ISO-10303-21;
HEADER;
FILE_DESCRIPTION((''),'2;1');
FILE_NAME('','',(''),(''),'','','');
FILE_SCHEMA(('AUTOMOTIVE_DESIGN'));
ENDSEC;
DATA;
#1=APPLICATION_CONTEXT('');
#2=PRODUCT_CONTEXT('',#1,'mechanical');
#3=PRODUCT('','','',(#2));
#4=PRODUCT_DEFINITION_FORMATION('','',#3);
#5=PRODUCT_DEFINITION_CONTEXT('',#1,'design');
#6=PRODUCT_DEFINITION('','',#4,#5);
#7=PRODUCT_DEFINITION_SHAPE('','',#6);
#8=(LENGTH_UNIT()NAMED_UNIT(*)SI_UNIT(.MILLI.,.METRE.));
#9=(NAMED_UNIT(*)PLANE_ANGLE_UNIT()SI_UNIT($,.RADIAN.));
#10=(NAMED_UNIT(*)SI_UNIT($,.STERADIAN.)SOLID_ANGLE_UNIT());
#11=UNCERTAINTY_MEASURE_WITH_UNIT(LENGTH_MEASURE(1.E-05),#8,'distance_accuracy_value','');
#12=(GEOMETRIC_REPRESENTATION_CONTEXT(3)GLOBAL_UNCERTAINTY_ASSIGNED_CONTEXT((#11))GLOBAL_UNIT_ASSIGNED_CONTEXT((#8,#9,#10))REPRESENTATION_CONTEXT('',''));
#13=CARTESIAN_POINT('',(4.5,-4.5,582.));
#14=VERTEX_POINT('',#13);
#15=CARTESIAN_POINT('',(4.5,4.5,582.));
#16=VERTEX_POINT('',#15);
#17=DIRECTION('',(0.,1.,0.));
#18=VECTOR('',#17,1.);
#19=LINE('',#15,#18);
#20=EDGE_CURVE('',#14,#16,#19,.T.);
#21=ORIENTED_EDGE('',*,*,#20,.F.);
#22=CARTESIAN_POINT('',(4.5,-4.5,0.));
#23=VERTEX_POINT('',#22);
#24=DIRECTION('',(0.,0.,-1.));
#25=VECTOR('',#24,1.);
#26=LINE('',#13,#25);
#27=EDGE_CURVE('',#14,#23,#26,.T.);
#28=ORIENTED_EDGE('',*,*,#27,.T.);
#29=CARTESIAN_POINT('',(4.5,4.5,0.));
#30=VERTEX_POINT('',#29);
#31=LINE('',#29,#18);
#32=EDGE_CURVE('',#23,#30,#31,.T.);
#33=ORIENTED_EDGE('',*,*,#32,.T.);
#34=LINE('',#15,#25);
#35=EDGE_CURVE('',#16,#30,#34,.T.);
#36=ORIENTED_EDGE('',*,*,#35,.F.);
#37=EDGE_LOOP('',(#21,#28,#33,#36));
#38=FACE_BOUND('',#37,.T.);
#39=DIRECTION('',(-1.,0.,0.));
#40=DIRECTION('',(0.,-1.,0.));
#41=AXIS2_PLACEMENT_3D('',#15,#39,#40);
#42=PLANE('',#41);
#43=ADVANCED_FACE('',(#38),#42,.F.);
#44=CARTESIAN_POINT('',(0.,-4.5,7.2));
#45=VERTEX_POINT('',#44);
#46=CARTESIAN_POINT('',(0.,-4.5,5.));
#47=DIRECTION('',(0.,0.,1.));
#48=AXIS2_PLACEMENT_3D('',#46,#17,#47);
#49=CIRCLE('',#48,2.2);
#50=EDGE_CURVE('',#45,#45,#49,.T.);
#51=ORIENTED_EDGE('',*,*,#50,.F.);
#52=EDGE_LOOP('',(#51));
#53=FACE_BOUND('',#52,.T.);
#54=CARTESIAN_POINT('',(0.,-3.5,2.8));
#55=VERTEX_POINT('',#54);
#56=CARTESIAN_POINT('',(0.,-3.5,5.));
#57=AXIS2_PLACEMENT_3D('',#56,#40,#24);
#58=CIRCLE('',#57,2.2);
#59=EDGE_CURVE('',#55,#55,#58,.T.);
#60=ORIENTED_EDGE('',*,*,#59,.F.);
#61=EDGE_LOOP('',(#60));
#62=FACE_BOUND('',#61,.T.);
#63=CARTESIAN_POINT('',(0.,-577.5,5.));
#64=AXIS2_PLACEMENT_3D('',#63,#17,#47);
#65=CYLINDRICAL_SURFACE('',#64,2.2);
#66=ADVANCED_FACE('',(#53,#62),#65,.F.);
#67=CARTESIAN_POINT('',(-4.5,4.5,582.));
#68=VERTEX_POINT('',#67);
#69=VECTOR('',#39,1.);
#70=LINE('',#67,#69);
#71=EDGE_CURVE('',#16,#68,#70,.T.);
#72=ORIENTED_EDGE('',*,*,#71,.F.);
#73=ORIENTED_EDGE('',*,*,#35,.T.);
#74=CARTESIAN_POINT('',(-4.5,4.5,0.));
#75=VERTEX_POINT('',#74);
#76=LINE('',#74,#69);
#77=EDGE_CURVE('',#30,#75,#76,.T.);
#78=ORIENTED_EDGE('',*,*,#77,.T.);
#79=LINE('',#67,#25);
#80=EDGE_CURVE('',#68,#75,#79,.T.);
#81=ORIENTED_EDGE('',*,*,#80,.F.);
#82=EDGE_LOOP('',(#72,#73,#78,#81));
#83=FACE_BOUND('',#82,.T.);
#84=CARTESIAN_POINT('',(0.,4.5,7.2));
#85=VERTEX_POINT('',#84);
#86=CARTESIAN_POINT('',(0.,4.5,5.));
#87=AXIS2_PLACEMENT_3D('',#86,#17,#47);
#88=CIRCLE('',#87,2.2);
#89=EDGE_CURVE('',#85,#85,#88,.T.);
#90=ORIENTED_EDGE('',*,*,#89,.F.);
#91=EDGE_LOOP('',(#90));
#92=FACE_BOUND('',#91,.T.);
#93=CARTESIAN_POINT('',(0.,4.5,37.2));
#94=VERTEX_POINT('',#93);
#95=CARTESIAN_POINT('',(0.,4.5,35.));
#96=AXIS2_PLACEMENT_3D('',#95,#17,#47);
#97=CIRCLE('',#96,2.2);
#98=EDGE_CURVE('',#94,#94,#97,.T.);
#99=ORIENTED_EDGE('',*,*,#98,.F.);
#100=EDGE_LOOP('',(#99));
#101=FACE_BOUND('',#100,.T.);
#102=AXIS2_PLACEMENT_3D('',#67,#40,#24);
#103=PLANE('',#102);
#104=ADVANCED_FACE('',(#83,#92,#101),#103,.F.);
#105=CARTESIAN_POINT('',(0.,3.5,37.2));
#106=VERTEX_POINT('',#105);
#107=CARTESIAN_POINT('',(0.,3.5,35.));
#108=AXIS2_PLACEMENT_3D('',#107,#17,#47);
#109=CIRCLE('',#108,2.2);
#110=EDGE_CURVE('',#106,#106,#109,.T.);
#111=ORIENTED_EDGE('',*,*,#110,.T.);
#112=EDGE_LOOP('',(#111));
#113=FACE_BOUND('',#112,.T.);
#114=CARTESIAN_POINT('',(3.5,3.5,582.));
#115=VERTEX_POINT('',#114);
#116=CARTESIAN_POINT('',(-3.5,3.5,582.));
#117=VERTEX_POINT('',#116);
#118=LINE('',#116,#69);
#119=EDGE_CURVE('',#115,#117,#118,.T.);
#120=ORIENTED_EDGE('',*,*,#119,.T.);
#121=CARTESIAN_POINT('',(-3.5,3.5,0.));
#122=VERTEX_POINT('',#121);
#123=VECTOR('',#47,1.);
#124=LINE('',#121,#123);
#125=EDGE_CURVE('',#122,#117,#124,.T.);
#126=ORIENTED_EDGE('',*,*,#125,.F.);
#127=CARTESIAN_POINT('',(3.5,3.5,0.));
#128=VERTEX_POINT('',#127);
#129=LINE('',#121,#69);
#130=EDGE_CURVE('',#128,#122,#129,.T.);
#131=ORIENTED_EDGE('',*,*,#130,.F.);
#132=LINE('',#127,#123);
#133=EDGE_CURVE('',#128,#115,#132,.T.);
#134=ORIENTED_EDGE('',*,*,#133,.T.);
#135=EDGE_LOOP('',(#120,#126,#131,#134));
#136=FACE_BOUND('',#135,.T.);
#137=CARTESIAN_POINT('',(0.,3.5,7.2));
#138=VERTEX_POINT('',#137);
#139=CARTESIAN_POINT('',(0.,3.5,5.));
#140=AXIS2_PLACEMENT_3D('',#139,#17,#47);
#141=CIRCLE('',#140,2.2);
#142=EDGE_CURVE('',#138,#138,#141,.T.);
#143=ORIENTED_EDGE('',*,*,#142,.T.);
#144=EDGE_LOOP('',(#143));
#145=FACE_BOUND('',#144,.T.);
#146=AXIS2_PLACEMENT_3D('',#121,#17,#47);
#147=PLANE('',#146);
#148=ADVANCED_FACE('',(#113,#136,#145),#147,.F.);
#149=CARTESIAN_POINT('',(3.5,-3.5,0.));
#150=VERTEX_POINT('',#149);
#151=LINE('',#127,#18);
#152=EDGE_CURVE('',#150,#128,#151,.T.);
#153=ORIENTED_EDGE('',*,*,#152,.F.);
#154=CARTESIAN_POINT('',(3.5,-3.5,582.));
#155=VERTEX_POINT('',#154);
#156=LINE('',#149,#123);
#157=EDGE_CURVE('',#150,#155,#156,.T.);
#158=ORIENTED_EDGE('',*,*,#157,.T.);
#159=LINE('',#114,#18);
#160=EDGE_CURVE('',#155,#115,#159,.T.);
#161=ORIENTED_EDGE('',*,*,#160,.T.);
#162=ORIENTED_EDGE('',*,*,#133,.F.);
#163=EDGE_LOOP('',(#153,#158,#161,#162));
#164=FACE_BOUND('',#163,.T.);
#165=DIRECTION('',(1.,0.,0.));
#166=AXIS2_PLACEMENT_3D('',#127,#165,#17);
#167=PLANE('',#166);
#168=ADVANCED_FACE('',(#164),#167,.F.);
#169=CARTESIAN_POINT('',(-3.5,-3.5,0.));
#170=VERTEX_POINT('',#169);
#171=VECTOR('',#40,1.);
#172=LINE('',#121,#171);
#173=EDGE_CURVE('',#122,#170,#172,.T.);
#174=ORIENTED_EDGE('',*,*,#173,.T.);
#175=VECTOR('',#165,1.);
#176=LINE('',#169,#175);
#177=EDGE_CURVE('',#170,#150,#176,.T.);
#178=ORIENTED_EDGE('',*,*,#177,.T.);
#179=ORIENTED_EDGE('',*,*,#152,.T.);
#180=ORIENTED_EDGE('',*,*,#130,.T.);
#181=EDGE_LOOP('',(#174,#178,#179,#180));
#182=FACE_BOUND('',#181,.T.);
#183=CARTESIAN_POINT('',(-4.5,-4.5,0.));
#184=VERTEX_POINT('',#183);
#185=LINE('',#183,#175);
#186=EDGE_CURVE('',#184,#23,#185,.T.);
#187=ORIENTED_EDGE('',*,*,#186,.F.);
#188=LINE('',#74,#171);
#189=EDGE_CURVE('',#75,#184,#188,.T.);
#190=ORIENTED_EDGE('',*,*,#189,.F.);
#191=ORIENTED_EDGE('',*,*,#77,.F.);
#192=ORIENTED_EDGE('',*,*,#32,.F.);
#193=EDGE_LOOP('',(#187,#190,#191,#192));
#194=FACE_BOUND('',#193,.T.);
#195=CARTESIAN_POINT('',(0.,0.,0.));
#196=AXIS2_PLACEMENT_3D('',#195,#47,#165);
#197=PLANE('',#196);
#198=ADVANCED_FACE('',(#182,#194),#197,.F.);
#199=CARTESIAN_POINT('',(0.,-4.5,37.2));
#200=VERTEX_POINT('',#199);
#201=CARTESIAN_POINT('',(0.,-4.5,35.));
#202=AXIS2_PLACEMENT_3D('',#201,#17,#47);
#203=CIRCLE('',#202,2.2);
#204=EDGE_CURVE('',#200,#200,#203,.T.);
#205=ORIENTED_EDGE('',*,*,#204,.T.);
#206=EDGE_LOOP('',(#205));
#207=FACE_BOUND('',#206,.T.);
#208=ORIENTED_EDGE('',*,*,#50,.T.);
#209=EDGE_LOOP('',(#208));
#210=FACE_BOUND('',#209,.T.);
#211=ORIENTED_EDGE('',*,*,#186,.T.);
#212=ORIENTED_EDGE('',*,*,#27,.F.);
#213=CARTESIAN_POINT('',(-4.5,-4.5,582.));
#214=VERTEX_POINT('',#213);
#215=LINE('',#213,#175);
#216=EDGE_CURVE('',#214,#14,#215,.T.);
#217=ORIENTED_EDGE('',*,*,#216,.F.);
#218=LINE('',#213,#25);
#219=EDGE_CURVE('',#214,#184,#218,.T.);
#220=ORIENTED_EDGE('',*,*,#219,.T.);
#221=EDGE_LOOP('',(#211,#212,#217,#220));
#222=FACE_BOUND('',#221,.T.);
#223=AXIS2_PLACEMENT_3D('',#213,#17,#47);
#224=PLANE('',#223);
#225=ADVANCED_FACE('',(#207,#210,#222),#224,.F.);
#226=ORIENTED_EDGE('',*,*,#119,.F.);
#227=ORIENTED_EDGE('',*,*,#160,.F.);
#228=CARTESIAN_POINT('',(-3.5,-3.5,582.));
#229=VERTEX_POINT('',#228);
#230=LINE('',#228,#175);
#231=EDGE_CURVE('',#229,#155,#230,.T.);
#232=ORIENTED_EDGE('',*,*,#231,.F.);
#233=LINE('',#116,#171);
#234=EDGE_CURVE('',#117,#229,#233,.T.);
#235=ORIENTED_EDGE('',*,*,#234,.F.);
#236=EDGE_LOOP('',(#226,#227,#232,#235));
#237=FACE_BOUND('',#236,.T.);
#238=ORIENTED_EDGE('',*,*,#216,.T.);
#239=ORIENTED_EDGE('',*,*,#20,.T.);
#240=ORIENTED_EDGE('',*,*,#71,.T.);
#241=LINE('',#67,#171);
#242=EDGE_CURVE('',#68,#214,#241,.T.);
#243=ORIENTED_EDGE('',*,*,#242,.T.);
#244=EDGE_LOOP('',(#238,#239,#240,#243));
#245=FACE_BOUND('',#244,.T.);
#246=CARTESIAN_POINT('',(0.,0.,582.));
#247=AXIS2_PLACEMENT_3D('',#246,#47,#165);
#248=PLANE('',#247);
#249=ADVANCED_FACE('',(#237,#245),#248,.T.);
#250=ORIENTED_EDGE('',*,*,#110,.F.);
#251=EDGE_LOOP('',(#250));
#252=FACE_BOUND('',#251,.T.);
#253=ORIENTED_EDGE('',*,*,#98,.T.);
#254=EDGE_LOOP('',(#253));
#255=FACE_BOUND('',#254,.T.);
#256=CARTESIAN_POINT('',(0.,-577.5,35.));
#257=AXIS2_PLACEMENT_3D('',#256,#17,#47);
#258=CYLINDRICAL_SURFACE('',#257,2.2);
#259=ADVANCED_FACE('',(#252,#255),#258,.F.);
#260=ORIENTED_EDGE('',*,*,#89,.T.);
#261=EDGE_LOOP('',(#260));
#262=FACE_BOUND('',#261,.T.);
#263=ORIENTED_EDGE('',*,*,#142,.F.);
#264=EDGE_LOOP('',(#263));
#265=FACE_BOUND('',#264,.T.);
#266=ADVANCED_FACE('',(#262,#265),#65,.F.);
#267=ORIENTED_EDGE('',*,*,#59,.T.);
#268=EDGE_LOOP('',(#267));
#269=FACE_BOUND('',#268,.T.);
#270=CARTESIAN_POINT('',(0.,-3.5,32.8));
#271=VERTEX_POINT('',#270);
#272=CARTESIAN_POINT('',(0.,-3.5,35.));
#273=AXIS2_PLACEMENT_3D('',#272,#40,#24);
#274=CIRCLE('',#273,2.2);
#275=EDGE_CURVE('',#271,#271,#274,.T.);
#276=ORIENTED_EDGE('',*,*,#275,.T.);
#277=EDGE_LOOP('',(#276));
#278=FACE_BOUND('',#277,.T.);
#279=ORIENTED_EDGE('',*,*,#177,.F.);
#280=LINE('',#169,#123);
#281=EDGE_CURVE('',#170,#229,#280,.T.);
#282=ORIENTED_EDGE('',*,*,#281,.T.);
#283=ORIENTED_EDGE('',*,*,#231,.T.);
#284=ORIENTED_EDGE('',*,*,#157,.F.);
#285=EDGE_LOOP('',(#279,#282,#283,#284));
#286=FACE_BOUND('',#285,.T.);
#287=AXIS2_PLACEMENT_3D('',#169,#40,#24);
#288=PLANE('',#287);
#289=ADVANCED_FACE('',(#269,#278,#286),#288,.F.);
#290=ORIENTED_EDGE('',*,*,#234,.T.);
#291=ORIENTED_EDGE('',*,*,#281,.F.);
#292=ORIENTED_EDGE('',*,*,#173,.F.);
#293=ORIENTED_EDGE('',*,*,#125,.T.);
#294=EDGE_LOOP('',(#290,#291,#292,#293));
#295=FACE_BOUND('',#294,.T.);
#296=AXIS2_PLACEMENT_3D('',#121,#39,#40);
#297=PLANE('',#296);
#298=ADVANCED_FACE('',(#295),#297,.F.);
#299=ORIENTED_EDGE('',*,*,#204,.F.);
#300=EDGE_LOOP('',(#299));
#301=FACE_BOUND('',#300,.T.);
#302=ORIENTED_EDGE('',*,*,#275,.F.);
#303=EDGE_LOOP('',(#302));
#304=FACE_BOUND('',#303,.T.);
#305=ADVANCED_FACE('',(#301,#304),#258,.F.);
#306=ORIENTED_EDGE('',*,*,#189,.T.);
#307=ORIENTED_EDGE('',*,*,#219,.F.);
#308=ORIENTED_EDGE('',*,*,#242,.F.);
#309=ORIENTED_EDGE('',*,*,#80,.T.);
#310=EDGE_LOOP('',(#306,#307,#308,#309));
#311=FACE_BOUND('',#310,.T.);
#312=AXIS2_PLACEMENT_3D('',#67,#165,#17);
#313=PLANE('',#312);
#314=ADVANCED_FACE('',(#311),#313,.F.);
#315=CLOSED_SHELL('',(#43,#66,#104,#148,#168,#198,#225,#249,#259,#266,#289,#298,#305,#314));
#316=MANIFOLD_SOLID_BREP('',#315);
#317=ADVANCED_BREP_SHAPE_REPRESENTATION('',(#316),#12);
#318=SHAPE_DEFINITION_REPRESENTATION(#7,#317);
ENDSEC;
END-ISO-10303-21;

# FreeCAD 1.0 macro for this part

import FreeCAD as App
import Part
import Sketcher
from FreeCAD import Vector
Q = App.Units.Quantity

doc = App.newDocument("Part")
body = doc.addObject("PartDesign::Body", "Body")

# Sketch on XY plane
sketch1 = doc.addObject("Sketcher::SketchObject", "Sketch")
body.addObject(sketch1)
sketch1.AttachmentSupport = (doc.XY_Plane, [""])
sketch1.MapMode = "FlatFace"
sketch1.addGeometry([
    Part.LineSegment(Vector(-4, 4, 0), Vector(-4, -4, 0)),
    Part.LineSegment(Vector(-4, -4, 0), Vector(4, -4, 0)),
    Part.LineSegment(Vector(4, -4, 0), Vector(4, 4, 0)),
    Part.LineSegment(Vector(4, 4, 0), Vector(-4, 4, 0)),
], False)
sketch1.addConstraint([
    Sketcher.Constraint("Coincident", 0, 2, 1, 1),
    Sketcher.Constraint("Coincident", 1, 2, 2, 1),
    Sketcher.Constraint("Coincident", 2, 2, 3, 1),
    Sketcher.Constraint("Coincident", 3, 2, 0, 1),
    Sketcher.Constraint("Vertical", 0),
    Sketcher.Constraint("Horizontal", 1),
    Sketcher.Constraint("Vertical", 2),
    Sketcher.Constraint("Horizontal", 3),
    Sketcher.Constraint("Symmetric", 0, 2, 2, 2, -1, 1),
    Sketcher.Constraint("Equal", 3, 0),
    Sketcher.Constraint("DistanceX", 1, 1, 1, 2, Q("9 mm")),
])
pad1 = doc.addObject("PartDesign::Pad", "Pad")
body.addObject(pad1)
pad1.Profile = sketch1
pad1.Length = 582

# Sketch on XY plane
sketch2 = doc.addObject("Sketcher::SketchObject", "Sketch001")
body.addObject(sketch2)
sketch2.AttachmentSupport = (doc.XY_Plane, [""])
sketch2.MapMode = "FlatFace"
sketch2.AttachmentOffset = App.Placement(Vector(0, 0, 582), App.Rotation())
sketch2.addGeometry([
    Part.LineSegment(Vector(-4, 4, 0), Vector(-4, -4, 0)),
    Part.LineSegment(Vector(-4, -4, 0), Vector(4, -4, 0)),
    Part.LineSegment(Vector(4, -4, 0), Vector(4, 4, 0)),
    Part.LineSegment(Vector(4, 4, 0), Vector(-4, 4, 0)),
], False)
sketch2.addConstraint([
    Sketcher.Constraint("Coincident", 0, 2, 1, 1),
    Sketcher.Constraint("Coincident", 1, 2, 2, 1),
    Sketcher.Constraint("Coincident", 2, 2, 3, 1),
    Sketcher.Constraint("Coincident", 3, 2, 0, 1),
    Sketcher.Constraint("Vertical", 0),
    Sketcher.Constraint("Horizontal", 1),
    Sketcher.Constraint("Vertical", 2),
    Sketcher.Constraint("Horizontal", 3),
    Sketcher.Constraint("Symmetric", 0, 2, 2, 2, -1, 1),
    Sketcher.Constraint("Equal", 3, 0),
    Sketcher.Constraint("DistanceX", 1, 1, 1, 2, Q("7 mm")),
])
pocket1 = doc.addObject("PartDesign::Pocket", "Pocket")
body.addObject(pocket1)
pocket1.Profile = sketch2
pocket1.Length = 582

# Sketch on XZ plane
sketch3 = doc.addObject("Sketcher::SketchObject", "Sketch002")
body.addObject(sketch3)
sketch3.AttachmentSupport = (doc.XZ_Plane, [""])
sketch3.MapMode = "FlatFace"
sketch3.AttachmentOffset = App.Placement(Vector(0, 0, -4.5), App.Rotation())
sketch3.addGeometry([
    Part.Circle(Vector(0, 5, 0), Vector(0, 0, 1), 2.2),
    Part.Circle(Vector(0, 35, 0), Vector(0, 0, 1), 2.2),
], False)
sketch3.addConstraint([
    Sketcher.Constraint("Equal", 0, 1),
    Sketcher.Constraint("PointOnObject", 0, 3, -2),
    Sketcher.Constraint("PointOnObject", 1, 3, -2),
    Sketcher.Constraint("Diameter", 0, Q("4.4 mm")),
    Sketcher.Constraint("DistanceY", -1, 1, 0, 3, Q("5 mm")),
    Sketcher.Constraint("DistanceY", -1, 1, 1, 3, Q("35 mm")),
])
pocket2 = doc.addObject("PartDesign::Pocket", "Pocket001")
body.addObject(pocket2)
pocket2.Profile = sketch3
pocket2.Length = 582
pocket2.Reversed = True

doc.recompute()
